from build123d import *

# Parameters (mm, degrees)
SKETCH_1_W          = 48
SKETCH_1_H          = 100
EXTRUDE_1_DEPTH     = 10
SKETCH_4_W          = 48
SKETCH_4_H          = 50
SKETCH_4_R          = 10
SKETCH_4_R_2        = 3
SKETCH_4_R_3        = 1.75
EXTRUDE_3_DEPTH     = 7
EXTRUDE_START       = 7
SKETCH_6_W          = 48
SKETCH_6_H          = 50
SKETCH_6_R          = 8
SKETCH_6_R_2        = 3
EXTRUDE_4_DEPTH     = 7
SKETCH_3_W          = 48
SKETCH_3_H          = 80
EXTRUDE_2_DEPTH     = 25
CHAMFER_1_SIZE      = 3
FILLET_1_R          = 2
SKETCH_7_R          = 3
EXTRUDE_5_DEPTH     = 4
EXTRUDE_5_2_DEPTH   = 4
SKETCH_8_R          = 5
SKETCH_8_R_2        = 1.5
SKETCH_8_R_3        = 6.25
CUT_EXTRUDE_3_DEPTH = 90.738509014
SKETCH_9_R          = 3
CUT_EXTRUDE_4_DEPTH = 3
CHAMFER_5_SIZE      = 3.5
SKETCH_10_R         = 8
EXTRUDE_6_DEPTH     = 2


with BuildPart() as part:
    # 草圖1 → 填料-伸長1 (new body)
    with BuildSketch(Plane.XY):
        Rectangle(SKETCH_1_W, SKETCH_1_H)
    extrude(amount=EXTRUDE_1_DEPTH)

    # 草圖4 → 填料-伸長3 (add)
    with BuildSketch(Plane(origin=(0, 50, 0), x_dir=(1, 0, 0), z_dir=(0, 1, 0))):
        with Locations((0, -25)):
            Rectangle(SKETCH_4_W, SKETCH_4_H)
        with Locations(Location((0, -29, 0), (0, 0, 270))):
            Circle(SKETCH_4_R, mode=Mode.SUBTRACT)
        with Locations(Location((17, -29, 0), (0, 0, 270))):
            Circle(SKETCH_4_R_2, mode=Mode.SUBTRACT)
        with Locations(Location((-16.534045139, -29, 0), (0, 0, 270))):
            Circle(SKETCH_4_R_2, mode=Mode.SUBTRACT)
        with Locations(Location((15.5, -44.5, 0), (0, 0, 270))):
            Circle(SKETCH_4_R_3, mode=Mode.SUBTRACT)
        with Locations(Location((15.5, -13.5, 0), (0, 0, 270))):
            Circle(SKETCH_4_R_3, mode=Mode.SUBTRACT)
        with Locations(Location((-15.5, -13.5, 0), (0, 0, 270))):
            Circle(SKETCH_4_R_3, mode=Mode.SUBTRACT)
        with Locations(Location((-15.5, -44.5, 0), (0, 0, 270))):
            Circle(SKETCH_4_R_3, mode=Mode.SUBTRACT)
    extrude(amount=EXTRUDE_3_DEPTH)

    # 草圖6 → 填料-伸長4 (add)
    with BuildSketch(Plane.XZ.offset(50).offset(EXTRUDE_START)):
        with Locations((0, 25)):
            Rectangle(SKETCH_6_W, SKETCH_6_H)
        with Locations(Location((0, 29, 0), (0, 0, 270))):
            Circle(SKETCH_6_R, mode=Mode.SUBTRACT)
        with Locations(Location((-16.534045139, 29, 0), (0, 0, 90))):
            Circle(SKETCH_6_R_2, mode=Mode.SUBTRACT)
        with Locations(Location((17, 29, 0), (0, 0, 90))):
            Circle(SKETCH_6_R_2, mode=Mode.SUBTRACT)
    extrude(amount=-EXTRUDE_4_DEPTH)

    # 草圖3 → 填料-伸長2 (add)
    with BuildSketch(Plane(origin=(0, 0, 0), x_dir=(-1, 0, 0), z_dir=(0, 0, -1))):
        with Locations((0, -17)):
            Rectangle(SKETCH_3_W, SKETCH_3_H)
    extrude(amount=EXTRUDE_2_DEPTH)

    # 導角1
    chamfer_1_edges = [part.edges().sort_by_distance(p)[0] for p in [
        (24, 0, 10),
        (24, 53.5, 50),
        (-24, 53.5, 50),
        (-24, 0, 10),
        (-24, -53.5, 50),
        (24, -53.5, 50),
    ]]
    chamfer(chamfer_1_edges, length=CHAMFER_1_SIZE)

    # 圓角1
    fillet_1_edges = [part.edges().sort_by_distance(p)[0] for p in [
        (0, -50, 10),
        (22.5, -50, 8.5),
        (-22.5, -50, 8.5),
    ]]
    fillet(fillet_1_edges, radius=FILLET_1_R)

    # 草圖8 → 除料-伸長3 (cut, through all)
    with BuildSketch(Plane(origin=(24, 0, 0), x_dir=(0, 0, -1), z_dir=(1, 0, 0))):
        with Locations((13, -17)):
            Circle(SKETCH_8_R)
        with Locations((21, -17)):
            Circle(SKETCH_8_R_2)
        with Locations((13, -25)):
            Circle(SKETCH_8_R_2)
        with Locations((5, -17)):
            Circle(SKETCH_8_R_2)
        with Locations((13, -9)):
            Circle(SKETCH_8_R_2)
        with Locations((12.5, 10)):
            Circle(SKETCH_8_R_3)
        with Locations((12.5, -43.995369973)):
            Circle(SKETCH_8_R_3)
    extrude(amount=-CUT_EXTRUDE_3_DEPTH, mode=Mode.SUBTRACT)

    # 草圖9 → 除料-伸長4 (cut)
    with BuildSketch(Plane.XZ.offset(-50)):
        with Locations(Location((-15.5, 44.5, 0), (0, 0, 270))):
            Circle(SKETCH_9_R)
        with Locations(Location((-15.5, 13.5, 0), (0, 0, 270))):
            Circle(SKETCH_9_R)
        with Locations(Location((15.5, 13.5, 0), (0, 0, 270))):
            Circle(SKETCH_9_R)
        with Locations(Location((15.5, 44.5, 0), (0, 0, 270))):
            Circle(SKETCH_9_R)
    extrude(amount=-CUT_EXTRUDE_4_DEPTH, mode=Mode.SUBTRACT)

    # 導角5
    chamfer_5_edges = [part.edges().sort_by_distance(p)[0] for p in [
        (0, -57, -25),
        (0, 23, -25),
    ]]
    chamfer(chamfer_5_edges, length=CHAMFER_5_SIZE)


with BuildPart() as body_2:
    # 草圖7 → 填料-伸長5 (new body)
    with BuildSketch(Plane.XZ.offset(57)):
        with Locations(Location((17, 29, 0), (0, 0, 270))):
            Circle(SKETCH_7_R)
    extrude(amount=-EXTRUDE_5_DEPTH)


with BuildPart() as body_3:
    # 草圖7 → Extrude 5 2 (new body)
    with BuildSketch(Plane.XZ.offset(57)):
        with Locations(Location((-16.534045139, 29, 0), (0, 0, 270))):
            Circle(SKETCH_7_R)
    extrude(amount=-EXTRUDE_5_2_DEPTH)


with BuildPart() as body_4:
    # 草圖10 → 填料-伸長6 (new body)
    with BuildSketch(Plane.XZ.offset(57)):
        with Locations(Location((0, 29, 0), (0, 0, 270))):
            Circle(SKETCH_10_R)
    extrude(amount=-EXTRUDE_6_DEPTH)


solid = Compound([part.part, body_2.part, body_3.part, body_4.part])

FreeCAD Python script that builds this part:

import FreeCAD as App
import Part
import Sketcher
from FreeCAD import Vector
Q = App.Units.Quantity


def edges_at(feature, points):
    """Names of the edges that pass closest to the given points."""
    edges = feature.Shape.Edges
    near = lambda p: min(range(len(edges)), key=lambda i: edges[i].distToShape(Part.Vertex(*p))[0])
    return sorted({f"Edge{near(p) + 1}" for p in points})


def add_polygon(sketch, points):
    """Adds a closed chain of lines whose ends are joined by coincident constraints."""
    first, n = sketch.GeometryCount, len(points)
    for a, b in zip(points, points[1:] + points[:1]):
        sketch.addGeometry(Part.LineSegment(App.Vector(*a, 0), App.Vector(*b, 0)), False)
    for i in range(n):
        sketch.addConstraint(Sketcher.Constraint("Coincident", first + i, 2, first + (i + 1) % n, 1))

doc = App.newDocument("Part")
body = doc.addObject("PartDesign::Body", "Body")

# Sketch on XY plane
sketch1 = body.newObject("Sketcher::SketchObject", "Sketch")
sketch1.AttachmentSupport = (doc.getObject("XY_Plane"), [""])
sketch1.MapMode = "FlatFace"
add_polygon(sketch1, [(-24, 50), (-24, -50), (24, -50), (24, 50)])  # lines 0-3
sketch1.addConstraint([
    Sketcher.Constraint("Vertical", 0),
    Sketcher.Constraint("Horizontal", 1),
    Sketcher.Constraint("Vertical", 2),
    Sketcher.Constraint("Horizontal", 3),
    Sketcher.Constraint("Symmetric", 0, 2, 2, 2, -1, 1),
    Sketcher.Constraint("DistanceX", 1, 1, 1, 2, Q("48 mm")),
    Sketcher.Constraint("DistanceY", 0, 2, 0, 1, Q("100 mm")),
])
pad1 = body.newObject("PartDesign::Pad", "Pad")
pad1.Profile = sketch1
pad1.Length = 10

# Sketch on XZ plane
sketch2 = body.newObject("Sketcher::SketchObject", "Sketch001")
sketch2.AttachmentSupport = (doc.getObject("XZ_Plane"), [""])
sketch2.MapMode = "FlatFace"
sketch2.AttachmentOffset = App.Placement(Vector(0, 0, -50), App.Rotation())
add_polygon(sketch2, [(-24, 0), (-24, 50), (24, 50), (24, 0)])  # lines 0-3
sketch2.addGeometry(Part.Circle(Vector(-15.5, 44.5, 0), Vector(0, 0, 1), 1.8), False)  # 4
sketch2.addGeometry(Part.Circle(Vector(15.5, 44.5, 0), Vector(0, 0, 1), 1.8), False)  # 5
sketch2.addGeometry(Part.Circle(Vector(-16.5, 29, 0), Vector(0, 0, 1), 3), False)  # 6
sketch2.addGeometry(Part.Circle(Vector(0, 29, 0), Vector(0, 0, 1), 10), False)  # 7
sketch2.addGeometry(Part.Circle(Vector(-15.5, 13.5, 0), Vector(0, 0, 1), 1.8), False)  # 8
sketch2.addGeometry(Part.Circle(Vector(17, 29, 0), Vector(0, 0, 1), 3), False)  # 9
sketch2.addGeometry(Part.Circle(Vector(15.5, 13.5, 0), Vector(0, 0, 1), 1.8), False)  # 10
sketch2.addConstraint([
    Sketcher.Constraint("Vertical", 0),
    Sketcher.Constraint("Horizontal", 1),
    Sketcher.Constraint("Vertical", 2),
    Sketcher.Constraint("Horizontal", 3),
    Sketcher.Constraint("Equal", 4, 5),
    Sketcher.Constraint("Equal", 5, 8),
    Sketcher.Constraint("Equal", 6, 9),
    Sketcher.Constraint("Equal", 8, 10),
    Sketcher.Constraint("Symmetric", 2, 2, 3, 2, -1, 1),
    Sketcher.Constraint("Symmetric", 4, 3, 5, 3, -2),
    Sketcher.Constraint("Symmetric", 8, 3, 10, 3, -2),
    Sketcher.Constraint("PointOnObject", 7, 3, -2),
    Sketcher.Constraint("Horizontal", 6, 3, 7, 3),
    Sketcher.Constraint("Horizontal", 7, 3, 9, 3),
    Sketcher.Constraint("Vertical", 4, 3, 8, 3),
    Sketcher.Constraint("Diameter", 6, Q("6 mm")),
    Sketcher.Constraint("Diameter", 7, Q("20 mm")),
    Sketcher.Constraint("Diameter", 4, Q("3.5 mm")),
    Sketcher.Constraint("DistanceX", 1, 1, 1, 2, Q("48 mm")),
    Sketcher.Constraint("DistanceY", 0, 1, 0, 2, Q("50 mm")),
    Sketcher.Constraint("DistanceY", -1, 1, 6, 3, Q("29 mm")),
    Sketcher.Constraint("DistanceX", -1, 1, 9, 3, Q("17 mm")),
    Sketcher.Constraint("DistanceX", 4, 3, 5, 3, Q("31 mm")),
    Sketcher.Constraint("DistanceY", 8, 3, 4, 3, Q("31 mm")),
    Sketcher.Constraint("DistanceY", -1, 1, 4, 3, Q("44.5 mm")),
    Sketcher.Constraint("DistanceX", 6, 3, -1, 1, Q("16.534045 mm")),
])
pad2 = body.newObject("PartDesign::Pad", "Pad001")
pad2.Profile = sketch2
pad2.Length = 7
pad2.Reversed = True

# Sketch on XZ plane
sketch3 = body.newObject("Sketcher::SketchObject", "Sketch002")
sketch3.AttachmentSupport = (doc.getObject("XZ_Plane"), [""])
sketch3.MapMode = "FlatFace"
sketch3.AttachmentOffset = App.Placement(Vector(0, 0, 57), App.Rotation())
add_polygon(sketch3, [(-24, 50), (-24, 0), (24, 0), (24, 50)])  # lines 0-3
sketch3.addGeometry(Part.Circle(Vector(-16.5, 29, 0), Vector(0, 0, 1), 3), False)  # 4
sketch3.addGeometry(Part.Circle(Vector(0, 29, 0), Vector(0, 0, 1), 8), False)  # 5
sketch3.addGeometry(Part.Circle(Vector(17, 29, 0), Vector(0, 0, 1), 3), False)  # 6
sketch3.addConstraint([
    Sketcher.Constraint("Vertical", 0),
    Sketcher.Constraint("Horizontal", 1),
    Sketcher.Constraint("Vertical", 2),
    Sketcher.Constraint("Horizontal", 3),
    Sketcher.Constraint("Equal", 4, 6),
    Sketcher.Constraint("Symmetric", 0, 2, 1, 2, -1, 1),
    Sketcher.Constraint("PointOnObject", 5, 3, -2),
    Sketcher.Constraint("Horizontal", 4, 3, 5, 3),
    Sketcher.Constraint("Horizontal", 5, 3, 6, 3),
    Sketcher.Constraint("Diameter", 4, Q("6 mm")),
    Sketcher.Constraint("Diameter", 5, Q("16 mm")),
    Sketcher.Constraint("DistanceX", 1, 1, 1, 2, Q("48 mm")),
    Sketcher.Constraint("DistanceY", 0, 2, 0, 1, Q("50 mm")),
    Sketcher.Constraint("DistanceY", -1, 1, 4, 3, Q("29 mm")),
    Sketcher.Constraint("DistanceX", -1, 1, 6, 3, Q("17 mm")),
    Sketcher.Constraint("DistanceX", 4, 3, -1, 1, Q("16.534045 mm")),
])
pad3 = body.newObject("PartDesign::Pad", "Pad002")
pad3.Profile = sketch3
pad3.Length = 7
pad3.Reversed = True

# Sketch on XY plane
sketch4 = body.newObject("Sketcher::SketchObject", "Sketch003")
sketch4.AttachmentSupport = (doc.getObject("XY_Plane"), [""])
sketch4.MapMode = "FlatFace"
add_polygon(sketch4, [(24, 23), (24, -57), (-24, -57), (-24, 23)])  # lines 0-3
sketch4.addConstraint([
    Sketcher.Constraint("Vertical", 0),
    Sketcher.Constraint("Horizontal", 1),
    Sketcher.Constraint("Vertical", 2),
    Sketcher.Constraint("Horizontal", 3),
    Sketcher.Constraint("DistanceX", 1, 2, 1, 1, Q("48 mm")),
    Sketcher.Constraint("DistanceY", 0, 2, 0, 1, Q("80 mm")),
    Sketcher.Constraint("DistanceX", -1, 1, 0, 2, Q("24 mm")),
    Sketcher.Constraint("DistanceY", 0, 2, -1, 1, Q("57 mm")),
])
pad4 = body.newObject("PartDesign::Pad", "Pad003")
pad4.Profile = sketch4
pad4.Length = 25
pad4.Reversed = True
doc.recompute()

chamfer = body.newObject("PartDesign::Chamfer", "Chamfer")
chamfer.Base = (pad4, edges_at(pad4, [
    (24, 0, 10),
    (24, 53.5, 50),
    (-24, 53.5, 50),
    (-24, 0, 10),
    (-24, -53.5, 50),
    (24, -53.5, 50),
]))
chamfer.Size = 3
doc.recompute()

fillet = body.newObject("PartDesign::Fillet", "Fillet")
fillet.Base = (chamfer, edges_at(chamfer, [(0, -50, 10), (22.5, -50, 8.5), (-22.5, -50, 8.5)]))
fillet.Radius = 2

# Sketch on YZ plane
sketch5 = body.newObject("Sketcher::SketchObject", "Sketch004")
sketch5.AttachmentSupport = (doc.getObject("YZ_Plane"), [""])
sketch5.MapMode = "FlatFace"
sketch5.AttachmentOffset = App.Placement(Vector(0, 0, 24), App.Rotation())
sketch5.addGeometry([
    Part.Circle(Vector(-17, -13, 0), Vector(0, 0, 1), 5),  # 0
    Part.Circle(Vector(-17, -21, 0), Vector(0, 0, 1), 1.5),  # 1
    Part.Circle(Vector(-25, -13, 0), Vector(0, 0, 1), 1.5),  # 2
    Part.Circle(Vector(-17, -5, 0), Vector(0, 0, 1), 1.5),  # 3
    Part.Circle(Vector(-9, -13, 0), Vector(0, 0, 1), 1.5),  # 4
    Part.Circle(Vector(10, -12.5, 0), Vector(0, 0, 1), 6.2),  # 5
    Part.Circle(Vector(-44, -12.5, 0), Vector(0, 0, 1), 6.2),  # 6
], False)
sketch5.addConstraint([
    Sketcher.Constraint("Equal", 1, 2),
    Sketcher.Constraint("Equal", 2, 3),
    Sketcher.Constraint("Equal", 3, 4),
    Sketcher.Constraint("Equal", 5, 6),
    Sketcher.Constraint("Horizontal", 0, 3, 2, 3),
    Sketcher.Constraint("Horizontal", 2, 3, 4, 3),
    Sketcher.Constraint("Horizontal", 5, 3, 6, 3),
    Sketcher.Constraint("Vertical", 0, 3, 1, 3),
    Sketcher.Constraint("Vertical", 1, 3, 3, 3),
    Sketcher.Constraint("Diameter", 0, Q("10 mm")),
    Sketcher.Constraint("Diameter", 1, Q("3 mm")),
    Sketcher.Constraint("Diameter", 5, Q("12.5 mm")),
    Sketcher.Constraint("DistanceX", 0, 3, -1, 1, Q("17 mm")),
    Sketcher.Constraint("DistanceY", 0, 3, -1, 1, Q("13 mm")),
    Sketcher.Constraint("DistanceY", 1, 3, -1, 1, Q("21 mm")),
    Sketcher.Constraint("DistanceX", 2, 3, -1, 1, Q("25 mm")),
    Sketcher.Constraint("DistanceY", 3, 3, -1, 1, Q("5 mm")),
    Sketcher.Constraint("DistanceX", 4, 3, -1, 1, Q("9 mm")),
    Sketcher.Constraint("DistanceX", -1, 1, 5, 3, Q("10 mm")),
    Sketcher.Constraint("DistanceY", 5, 3, -1, 1, Q("12.5 mm")),
    Sketcher.Constraint("DistanceX", 6, 3, -1, 1, Q("43.99537 mm")),
])
pocket1 = body.newObject("PartDesign::Pocket", "Pocket")
pocket1.Profile = sketch5
pocket1.Type = "ThroughAll"

# Sketch on XZ plane
sketch6 = body.newObject("Sketcher::SketchObject", "Sketch005")
sketch6.AttachmentSupport = (doc.getObject("XZ_Plane"), [""])
sketch6.MapMode = "FlatFace"
sketch6.AttachmentOffset = App.Placement(Vector(0, 0, -50), App.Rotation())
sketch6.addGeometry([
    Part.Circle(Vector(-15.5, 44.5, 0), Vector(0, 0, 1), 3),
    Part.Circle(Vector(-15.5, 13.5, 0), Vector(0, 0, 1), 3),
    Part.Circle(Vector(15.5, 13.5, 0), Vector(0, 0, 1), 3),
    Part.Circle(Vector(15.5, 44.5, 0), Vector(0, 0, 1), 3),
], False)
sketch6.addConstraint([
    Sketcher.Constraint("Equal", 0, 1),
    Sketcher.Constraint("Equal", 1, 2),
    Sketcher.Constraint("Equal", 2, 3),
    Sketcher.Constraint("Symmetric", 1, 3, 2, 3, -2),
    Sketcher.Constraint("Symmetric", 0, 3, 3, 3, -2),
    Sketcher.Constraint("Vertical", 0, 3, 1, 3),
    Sketcher.Constraint("Diameter", 0, Q("6 mm")),
    Sketcher.Constraint("DistanceY", 1, 3, 0, 3, Q("31 mm")),
    Sketcher.Constraint("DistanceX", 1, 3, 2, 3, Q("31 mm")),
    Sketcher.Constraint("DistanceY", -1, 1, 0, 3, Q("44.5 mm")),
])
pocket2 = body.newObject("PartDesign::Pocket", "Pocket001")
pocket2.Profile = sketch6
pocket2.Length = 3
doc.recompute()

chamfer2 = body.newObject("PartDesign::Chamfer", "Chamfer001")
chamfer2.Base = (pocket2, edges_at(pocket2, [(0, -57, -25), (0, 23, -25)]))
chamfer2.Size = 3.5
body2 = doc.addObject("PartDesign::Body", "Body001")

# Sketch on XZ plane
sketch7 = body2.newObject("Sketcher::SketchObject", "Sketch006")
sketch7.AttachmentSupport = (doc.getObject("XZ_Plane001"), [""])
sketch7.MapMode = "FlatFace"
sketch7.AttachmentOffset = App.Placement(Vector(0, 0, 57), App.Rotation())
sketch7.addGeometry(Part.Circle(Vector(17, 29, 0), Vector(0, 0, 1), 3), False)
sketch7.addConstraint([
    Sketcher.Constraint("Diameter", 0, Q("6 mm")),
    Sketcher.Constraint("DistanceX", -1, 1, 0, 3, Q("17 mm")),
    Sketcher.Constraint("DistanceY", -1, 1, 0, 3, Q("29 mm")),
])
pad5 = body2.newObject("PartDesign::Pad", "Pad004")
pad5.Profile = sketch7
pad5.Length = 4
pad5.Reversed = True
body3 = doc.addObject("PartDesign::Body", "Body002")

# Sketch on XZ plane
sketch8 = body3.newObject("Sketcher::SketchObject", "Sketch007")
sketch8.AttachmentSupport = (doc.getObject("XZ_Plane002"), [""])
sketch8.MapMode = "FlatFace"
sketch8.AttachmentOffset = App.Placement(Vector(0, 0, 57), App.Rotation())
sketch8.addGeometry(Part.Circle(Vector(-16.5, 29, 0), Vector(0, 0, 1), 3), False)
sketch8.addConstraint([
    Sketcher.Constraint("Diameter", 0, Q("6 mm")),
    Sketcher.Constraint("DistanceY", -1, 1, 0, 3, Q("29 mm")),
    Sketcher.Constraint("DistanceX", 0, 3, -1, 1, Q("16.534045 mm")),
])
pad6 = body3.newObject("PartDesign::Pad", "Pad005")
pad6.Profile = sketch8
pad6.Length = 4
pad6.Reversed = True
body4 = doc.addObject("PartDesign::Body", "Body003")

# Sketch on XZ plane
sketch9 = body4.newObject("Sketcher::SketchObject", "Sketch008")
sketch9.AttachmentSupport = (doc.getObject("XZ_Plane003"), [""])
sketch9.MapMode = "FlatFace"
sketch9.AttachmentOffset = App.Placement(Vector(0, 0, 57), App.Rotation())
sketch9.addGeometry(Part.Circle(Vector(0, 29, 0), Vector(0, 0, 1), 8), False)
sketch9.addConstraint([
    Sketcher.Constraint("PointOnObject", 0, 3, -2),
    Sketcher.Constraint("Diameter", 0, Q("16 mm")),
    Sketcher.Constraint("DistanceY", -1, 1, 0, 3, Q("29 mm")),
])
pad7 = body4.newObject("PartDesign::Pad", "Pad006")
pad7.Profile = sketch9
pad7.Length = 2
pad7.Reversed = True

doc.recompute()
